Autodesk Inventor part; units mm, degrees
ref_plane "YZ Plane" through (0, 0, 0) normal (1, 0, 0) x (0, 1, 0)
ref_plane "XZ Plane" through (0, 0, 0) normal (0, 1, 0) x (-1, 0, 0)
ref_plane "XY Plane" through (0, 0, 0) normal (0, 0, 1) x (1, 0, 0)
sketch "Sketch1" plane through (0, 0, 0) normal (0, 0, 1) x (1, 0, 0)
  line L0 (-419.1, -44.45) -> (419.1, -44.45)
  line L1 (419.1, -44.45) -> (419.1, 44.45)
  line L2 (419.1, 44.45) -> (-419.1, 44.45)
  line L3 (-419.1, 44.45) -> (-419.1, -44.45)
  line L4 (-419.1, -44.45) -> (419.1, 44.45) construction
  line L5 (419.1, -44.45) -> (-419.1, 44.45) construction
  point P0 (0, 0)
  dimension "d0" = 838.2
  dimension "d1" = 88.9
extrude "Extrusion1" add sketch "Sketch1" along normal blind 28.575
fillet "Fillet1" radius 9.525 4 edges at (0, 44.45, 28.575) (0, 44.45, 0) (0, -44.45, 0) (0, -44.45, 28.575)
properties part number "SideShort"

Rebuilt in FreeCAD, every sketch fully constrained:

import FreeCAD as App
import Part
import Sketcher

V = App.Vector
Q = App.Units.Quantity


def edges_at(feature, points):
    """Names of the edges that pass closest to the given points."""
    edges = feature.Shape.Edges
    near = lambda p: min(range(len(edges)), key=lambda i: edges[i].distToShape(Part.Vertex(*p))[0])
    return sorted({f"Edge{near(p) + 1}" for p in points})

doc = App.newDocument("Part")
body = doc.addObject("PartDesign::Body", "Body")

sketch1 = body.newObject("Sketcher::SketchObject", "Sketch")
sketch1.AttachmentSupport = (doc.getObject("XY_Plane"), [""])
sketch1.MapMode = "FlatFace"
sketch1.addGeometry(Part.LineSegment(V(-419, 44, 0), V(-419, -44, 0)), False)
sketch1.addGeometry(Part.LineSegment(V(-419, -44, 0), V(419, -44, 0)), False)
sketch1.addGeometry(Part.LineSegment(V(419, -44, 0), V(419, 44, 0)), False)
sketch1.addGeometry(Part.LineSegment(V(419, 44, 0), V(-419, 44, 0)), False)
sketch1.addConstraint(Sketcher.Constraint("Coincident", 0, 2, 1, 1))
sketch1.addConstraint(Sketcher.Constraint("Coincident", 1, 2, 2, 1))
sketch1.addConstraint(Sketcher.Constraint("Coincident", 2, 2, 3, 1))
sketch1.addConstraint(Sketcher.Constraint("Coincident", 3, 2, 0, 1))
sketch1.addConstraint(Sketcher.Constraint("Vertical", 0))
sketch1.addConstraint(Sketcher.Constraint("Horizontal", 1))
sketch1.addConstraint(Sketcher.Constraint("Vertical", 2))
sketch1.addConstraint(Sketcher.Constraint("Horizontal", 3))
sketch1.addConstraint(Sketcher.Constraint("Symmetric", 0, 2, 2, 2, -1, 1))
sketch1.addConstraint(Sketcher.Constraint("DistanceX", 1, 1, 1, 2, Q("33 in")))
sketch1.addConstraint(Sketcher.Constraint("DistanceY", 0, 2, 0, 1, Q("3.5 in")))
pad1 = body.newObject("PartDesign::Pad", "Pad")
pad1.Profile = sketch1
pad1.Length = Q("1.125 in")
doc.recompute()

fillet = body.newObject("PartDesign::Fillet", "Fillet")
fillet.Base = (pad1, edges_at(pad1, [
    (0, 44.45, 28.575),
    (0, 44.45, 0),
    (0, -44.45, 0),
    (0, -44.45, 28.575),
]))
fillet.Radius = Q("0.375 in")

doc.recompute()
